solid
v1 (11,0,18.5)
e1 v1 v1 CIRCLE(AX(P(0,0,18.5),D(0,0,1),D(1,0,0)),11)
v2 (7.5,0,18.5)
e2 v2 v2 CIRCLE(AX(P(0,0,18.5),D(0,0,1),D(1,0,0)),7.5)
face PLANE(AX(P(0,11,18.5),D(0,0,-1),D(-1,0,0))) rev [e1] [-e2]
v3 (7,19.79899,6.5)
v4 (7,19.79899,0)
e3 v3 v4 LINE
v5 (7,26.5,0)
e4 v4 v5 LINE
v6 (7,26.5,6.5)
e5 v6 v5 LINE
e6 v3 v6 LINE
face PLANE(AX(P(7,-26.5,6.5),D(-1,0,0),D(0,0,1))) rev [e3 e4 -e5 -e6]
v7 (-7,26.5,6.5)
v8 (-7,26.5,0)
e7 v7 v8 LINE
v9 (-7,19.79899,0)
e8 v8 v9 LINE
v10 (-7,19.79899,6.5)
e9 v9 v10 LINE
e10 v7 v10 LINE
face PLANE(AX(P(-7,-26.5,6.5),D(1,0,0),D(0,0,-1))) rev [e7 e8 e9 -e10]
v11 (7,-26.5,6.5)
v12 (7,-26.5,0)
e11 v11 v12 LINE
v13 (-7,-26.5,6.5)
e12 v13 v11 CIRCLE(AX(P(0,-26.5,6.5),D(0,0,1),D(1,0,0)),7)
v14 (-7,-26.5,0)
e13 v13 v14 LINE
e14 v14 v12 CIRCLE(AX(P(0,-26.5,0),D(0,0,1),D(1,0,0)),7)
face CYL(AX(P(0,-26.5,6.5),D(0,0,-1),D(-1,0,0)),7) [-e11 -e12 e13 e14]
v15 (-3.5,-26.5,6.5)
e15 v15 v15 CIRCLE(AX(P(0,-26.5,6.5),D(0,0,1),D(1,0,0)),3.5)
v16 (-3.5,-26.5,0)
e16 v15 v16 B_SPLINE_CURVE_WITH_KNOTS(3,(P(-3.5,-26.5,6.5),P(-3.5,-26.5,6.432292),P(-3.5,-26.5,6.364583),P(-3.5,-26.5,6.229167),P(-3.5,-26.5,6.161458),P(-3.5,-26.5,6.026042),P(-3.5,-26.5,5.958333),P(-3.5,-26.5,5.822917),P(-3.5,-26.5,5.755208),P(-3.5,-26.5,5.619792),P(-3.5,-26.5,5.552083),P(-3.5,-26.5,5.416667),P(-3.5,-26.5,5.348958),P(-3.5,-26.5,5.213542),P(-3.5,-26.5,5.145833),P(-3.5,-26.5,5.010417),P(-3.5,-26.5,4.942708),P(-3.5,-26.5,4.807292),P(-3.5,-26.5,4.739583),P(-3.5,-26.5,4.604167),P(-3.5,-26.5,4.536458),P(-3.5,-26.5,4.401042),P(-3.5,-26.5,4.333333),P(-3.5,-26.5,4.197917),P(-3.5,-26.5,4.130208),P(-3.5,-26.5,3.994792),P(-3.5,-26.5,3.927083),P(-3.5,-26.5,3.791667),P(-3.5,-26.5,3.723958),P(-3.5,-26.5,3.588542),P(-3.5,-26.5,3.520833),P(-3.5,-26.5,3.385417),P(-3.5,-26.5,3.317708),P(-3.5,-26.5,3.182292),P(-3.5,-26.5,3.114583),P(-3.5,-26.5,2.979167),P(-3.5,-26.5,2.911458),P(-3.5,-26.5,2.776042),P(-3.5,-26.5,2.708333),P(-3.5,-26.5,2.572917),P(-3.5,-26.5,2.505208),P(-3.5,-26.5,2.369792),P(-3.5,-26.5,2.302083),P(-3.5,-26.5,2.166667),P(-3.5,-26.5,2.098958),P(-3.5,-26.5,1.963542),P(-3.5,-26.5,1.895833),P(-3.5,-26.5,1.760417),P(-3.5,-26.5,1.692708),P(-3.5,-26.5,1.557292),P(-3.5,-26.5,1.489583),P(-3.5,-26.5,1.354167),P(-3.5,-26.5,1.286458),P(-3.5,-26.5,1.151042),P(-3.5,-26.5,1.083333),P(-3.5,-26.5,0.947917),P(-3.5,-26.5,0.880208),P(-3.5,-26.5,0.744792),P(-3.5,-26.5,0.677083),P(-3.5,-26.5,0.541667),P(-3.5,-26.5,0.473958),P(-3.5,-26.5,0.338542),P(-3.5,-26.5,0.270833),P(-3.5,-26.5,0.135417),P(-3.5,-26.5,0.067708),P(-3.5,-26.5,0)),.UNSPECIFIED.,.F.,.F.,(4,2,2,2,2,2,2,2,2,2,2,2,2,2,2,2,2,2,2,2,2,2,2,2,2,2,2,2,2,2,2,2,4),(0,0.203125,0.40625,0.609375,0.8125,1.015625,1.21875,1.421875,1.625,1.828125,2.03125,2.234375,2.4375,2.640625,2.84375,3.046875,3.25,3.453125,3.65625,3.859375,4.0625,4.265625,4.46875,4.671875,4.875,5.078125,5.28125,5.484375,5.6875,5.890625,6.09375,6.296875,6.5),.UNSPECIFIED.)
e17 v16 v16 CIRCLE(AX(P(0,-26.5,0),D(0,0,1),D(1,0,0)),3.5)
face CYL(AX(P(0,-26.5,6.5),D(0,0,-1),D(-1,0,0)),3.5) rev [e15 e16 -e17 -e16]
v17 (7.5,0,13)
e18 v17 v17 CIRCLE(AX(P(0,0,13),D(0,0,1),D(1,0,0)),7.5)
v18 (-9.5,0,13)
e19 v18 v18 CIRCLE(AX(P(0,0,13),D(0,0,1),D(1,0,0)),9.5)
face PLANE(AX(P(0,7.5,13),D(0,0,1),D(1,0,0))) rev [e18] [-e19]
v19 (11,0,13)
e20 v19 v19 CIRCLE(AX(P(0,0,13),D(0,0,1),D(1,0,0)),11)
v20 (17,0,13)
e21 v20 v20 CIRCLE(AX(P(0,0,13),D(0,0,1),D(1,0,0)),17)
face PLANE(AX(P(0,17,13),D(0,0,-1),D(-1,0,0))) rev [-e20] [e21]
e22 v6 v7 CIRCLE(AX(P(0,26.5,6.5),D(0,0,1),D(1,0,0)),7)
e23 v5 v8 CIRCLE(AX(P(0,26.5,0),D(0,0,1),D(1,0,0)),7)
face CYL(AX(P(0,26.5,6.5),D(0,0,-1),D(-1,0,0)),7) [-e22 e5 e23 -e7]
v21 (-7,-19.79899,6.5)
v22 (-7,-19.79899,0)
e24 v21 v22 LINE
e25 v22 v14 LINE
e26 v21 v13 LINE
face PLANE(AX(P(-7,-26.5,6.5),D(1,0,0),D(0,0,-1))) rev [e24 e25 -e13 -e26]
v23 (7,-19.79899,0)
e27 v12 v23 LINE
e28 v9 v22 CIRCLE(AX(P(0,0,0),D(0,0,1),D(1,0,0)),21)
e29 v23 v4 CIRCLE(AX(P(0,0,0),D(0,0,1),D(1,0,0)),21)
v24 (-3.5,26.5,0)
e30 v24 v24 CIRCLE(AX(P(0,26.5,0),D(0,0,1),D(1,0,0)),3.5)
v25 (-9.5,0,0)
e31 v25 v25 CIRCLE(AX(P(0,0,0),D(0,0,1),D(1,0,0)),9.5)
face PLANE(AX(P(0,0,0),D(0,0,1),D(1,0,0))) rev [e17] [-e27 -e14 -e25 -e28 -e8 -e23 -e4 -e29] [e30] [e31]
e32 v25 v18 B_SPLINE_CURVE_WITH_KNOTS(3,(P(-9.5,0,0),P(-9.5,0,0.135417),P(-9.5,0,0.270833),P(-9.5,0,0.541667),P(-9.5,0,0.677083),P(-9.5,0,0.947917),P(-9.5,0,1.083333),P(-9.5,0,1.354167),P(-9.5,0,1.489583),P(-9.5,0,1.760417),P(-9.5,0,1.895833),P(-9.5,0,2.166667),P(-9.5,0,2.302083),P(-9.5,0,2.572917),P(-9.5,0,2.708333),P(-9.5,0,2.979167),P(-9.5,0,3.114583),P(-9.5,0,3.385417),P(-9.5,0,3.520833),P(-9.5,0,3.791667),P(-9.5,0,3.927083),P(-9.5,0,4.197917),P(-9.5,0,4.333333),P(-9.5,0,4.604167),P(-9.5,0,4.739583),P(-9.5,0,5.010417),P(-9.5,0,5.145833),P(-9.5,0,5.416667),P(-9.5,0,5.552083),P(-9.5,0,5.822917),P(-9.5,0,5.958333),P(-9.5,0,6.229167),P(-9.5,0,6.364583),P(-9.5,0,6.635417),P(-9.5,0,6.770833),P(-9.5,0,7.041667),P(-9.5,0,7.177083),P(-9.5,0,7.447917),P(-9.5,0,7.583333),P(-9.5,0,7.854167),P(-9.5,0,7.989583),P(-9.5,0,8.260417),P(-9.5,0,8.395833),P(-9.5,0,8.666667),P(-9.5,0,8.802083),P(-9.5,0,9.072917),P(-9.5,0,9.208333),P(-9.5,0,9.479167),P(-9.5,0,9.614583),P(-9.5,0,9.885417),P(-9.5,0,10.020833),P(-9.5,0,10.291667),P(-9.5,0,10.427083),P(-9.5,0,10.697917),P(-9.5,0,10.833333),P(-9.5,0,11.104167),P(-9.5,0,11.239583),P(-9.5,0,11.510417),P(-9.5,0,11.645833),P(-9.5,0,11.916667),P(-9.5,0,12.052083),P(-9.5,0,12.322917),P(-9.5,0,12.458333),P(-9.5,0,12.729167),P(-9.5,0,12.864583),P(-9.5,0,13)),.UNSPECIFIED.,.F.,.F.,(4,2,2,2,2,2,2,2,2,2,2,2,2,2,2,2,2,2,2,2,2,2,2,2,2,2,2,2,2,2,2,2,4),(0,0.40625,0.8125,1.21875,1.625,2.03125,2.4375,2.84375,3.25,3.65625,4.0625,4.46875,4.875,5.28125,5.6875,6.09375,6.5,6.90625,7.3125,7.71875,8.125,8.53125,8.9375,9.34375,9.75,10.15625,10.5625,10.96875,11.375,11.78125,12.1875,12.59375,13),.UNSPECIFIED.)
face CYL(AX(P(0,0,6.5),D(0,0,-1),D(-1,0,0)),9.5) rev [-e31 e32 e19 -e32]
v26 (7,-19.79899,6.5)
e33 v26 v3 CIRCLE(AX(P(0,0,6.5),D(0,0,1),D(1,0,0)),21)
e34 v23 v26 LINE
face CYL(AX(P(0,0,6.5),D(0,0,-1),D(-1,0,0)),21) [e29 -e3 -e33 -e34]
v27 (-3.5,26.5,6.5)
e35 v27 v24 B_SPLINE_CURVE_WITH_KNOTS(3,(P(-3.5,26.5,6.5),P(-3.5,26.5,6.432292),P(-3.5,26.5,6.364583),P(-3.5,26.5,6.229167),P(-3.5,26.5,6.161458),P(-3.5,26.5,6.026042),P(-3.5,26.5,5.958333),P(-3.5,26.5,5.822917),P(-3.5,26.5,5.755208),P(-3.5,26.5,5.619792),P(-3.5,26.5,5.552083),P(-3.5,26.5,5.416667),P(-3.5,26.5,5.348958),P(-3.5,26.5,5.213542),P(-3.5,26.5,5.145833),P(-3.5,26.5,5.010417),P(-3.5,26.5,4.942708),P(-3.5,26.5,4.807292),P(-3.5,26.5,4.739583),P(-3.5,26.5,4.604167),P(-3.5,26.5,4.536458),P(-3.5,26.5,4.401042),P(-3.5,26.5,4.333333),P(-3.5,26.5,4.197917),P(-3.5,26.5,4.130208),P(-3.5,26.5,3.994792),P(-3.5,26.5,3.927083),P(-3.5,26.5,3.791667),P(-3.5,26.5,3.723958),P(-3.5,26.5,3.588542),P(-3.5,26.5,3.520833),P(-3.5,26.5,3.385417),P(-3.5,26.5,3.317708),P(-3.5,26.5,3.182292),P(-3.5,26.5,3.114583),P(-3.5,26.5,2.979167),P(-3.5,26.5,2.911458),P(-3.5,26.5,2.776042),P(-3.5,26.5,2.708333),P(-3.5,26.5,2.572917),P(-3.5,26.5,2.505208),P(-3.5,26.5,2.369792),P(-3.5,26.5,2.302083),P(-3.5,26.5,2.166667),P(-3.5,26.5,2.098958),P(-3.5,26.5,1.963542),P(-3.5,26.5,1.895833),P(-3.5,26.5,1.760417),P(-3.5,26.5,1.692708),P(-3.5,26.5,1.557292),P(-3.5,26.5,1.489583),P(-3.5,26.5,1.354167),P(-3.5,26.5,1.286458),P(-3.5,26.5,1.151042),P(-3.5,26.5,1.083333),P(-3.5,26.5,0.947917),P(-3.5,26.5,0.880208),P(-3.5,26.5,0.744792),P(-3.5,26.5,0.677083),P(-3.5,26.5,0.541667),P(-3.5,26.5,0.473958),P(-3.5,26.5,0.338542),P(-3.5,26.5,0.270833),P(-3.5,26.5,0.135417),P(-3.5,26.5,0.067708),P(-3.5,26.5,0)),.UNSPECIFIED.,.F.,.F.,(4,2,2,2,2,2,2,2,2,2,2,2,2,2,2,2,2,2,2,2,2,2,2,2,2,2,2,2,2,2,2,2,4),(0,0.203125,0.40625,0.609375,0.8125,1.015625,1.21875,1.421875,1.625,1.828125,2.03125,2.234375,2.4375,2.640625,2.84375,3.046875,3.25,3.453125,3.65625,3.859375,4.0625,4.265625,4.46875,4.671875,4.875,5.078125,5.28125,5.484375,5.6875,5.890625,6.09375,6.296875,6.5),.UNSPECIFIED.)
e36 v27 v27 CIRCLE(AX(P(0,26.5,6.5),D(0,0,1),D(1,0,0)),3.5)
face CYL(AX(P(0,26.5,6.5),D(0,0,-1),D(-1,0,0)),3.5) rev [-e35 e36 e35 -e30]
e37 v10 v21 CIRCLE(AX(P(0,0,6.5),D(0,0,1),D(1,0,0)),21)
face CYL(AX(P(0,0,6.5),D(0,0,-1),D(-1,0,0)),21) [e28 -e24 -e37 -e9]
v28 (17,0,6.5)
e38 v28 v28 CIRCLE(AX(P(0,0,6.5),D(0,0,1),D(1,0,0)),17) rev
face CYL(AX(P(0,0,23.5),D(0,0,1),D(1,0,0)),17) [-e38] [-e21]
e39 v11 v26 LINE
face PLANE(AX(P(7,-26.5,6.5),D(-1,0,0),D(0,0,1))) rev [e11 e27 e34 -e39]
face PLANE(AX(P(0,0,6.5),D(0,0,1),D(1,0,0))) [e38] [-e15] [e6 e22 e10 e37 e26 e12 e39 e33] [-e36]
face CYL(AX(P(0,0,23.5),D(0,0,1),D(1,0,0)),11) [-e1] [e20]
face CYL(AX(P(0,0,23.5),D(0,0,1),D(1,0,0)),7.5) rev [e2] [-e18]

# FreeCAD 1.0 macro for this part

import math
import FreeCAD as App
import Part
import Sketcher

V = App.Vector


def add_polygon(sketch, points):
    """Adds a closed chain of lines whose ends are joined by coincident constraints."""
    first, n = sketch.GeometryCount, len(points)
    for a, b in zip(points, points[1:] + points[:1]):
        sketch.addGeometry(Part.LineSegment(App.Vector(*a, 0), App.Vector(*b, 0)), False)
    for i in range(n):
        sketch.addConstraint(Sketcher.Constraint("Coincident", first + i, 2, first + (i + 1) % n, 1))

doc = App.newDocument("Part")
body = doc.addObject("PartDesign::Body", "Body")

# Sketch on XY plane
sketch1 = body.newObject("Sketcher::SketchObject", "Sketch")
sketch1.AttachmentSupport = (doc.getObject("XY_Plane"), [""])
sketch1.MapMode = "FlatFace"
sketch1.addGeometry(Part.Circle(V(0, 0, 0), V(0, 0, 1), 21), False)
sketch1.addConstraint(Sketcher.Constraint("Coincident", 0, 3, -1, 1))
sketch1.addConstraint(Sketcher.Constraint("Diameter", 0, 42.0))
pad1 = body.newObject("PartDesign::Pad", "Pad")
pad1.Profile = sketch1
pad1.Length = 6.5

# Sketch on XY plane
sketch2 = body.newObject("Sketcher::SketchObject", "Sketch001")
sketch2.AttachmentSupport = (doc.getObject("XY_Plane"), [""])
sketch2.MapMode = "FlatFace"
sketch2.addGeometry(Part.LineSegment(V(-7, 26.5, 0), V(-7, -26.5, 0)), False)
sketch2.addGeometry(Part.ArcOfCircle(Part.Circle(V(0, -26.5, 0), V(0, 0, 1), 7), math.radians(180), math.radians(360)), False)
sketch2.addGeometry(Part.LineSegment(V(7, -26.5, 0), V(7, 26.5, 0)), False)
sketch2.addGeometry(Part.ArcOfCircle(Part.Circle(V(0, 26.5, 0), V(0, 0, 1), 7), math.radians(0), math.radians(180)), False)
sketch2.addConstraint(Sketcher.Constraint("Tangent", 0, 2, 1, 1))
sketch2.addConstraint(Sketcher.Constraint("Tangent", 1, 2, 2, 1))
sketch2.addConstraint(Sketcher.Constraint("Tangent", 2, 2, 3, 1))
sketch2.addConstraint(Sketcher.Constraint("Tangent", 3, 2, 0, 1))
sketch2.addConstraint(Sketcher.Constraint("Vertical", 0))
sketch2.addConstraint(Sketcher.Constraint("Vertical", 2))
sketch2.addConstraint(Sketcher.Constraint("Symmetric", 1, 3, 3, 3, -1, 1))
sketch2.addConstraint(Sketcher.Constraint("Radius", 1, 7.0))
sketch2.addConstraint(Sketcher.Constraint("DistanceY", 0, 2, 0, 1, 53.0))
pad2 = body.newObject("PartDesign::Pad", "Pad001")
pad2.Profile = sketch2
pad2.Length = 6.5

# Sketch on XY plane
sketch3 = body.newObject("Sketcher::SketchObject", "Sketch002")
sketch3.AttachmentSupport = (doc.getObject("XY_Plane"), [""])
sketch3.MapMode = "FlatFace"
sketch3.addGeometry(Part.Circle(V(0, 0, 0), V(0, 0, 1), 9.5), False)
sketch3.addGeometry(Part.Circle(V(0, -26.5, 0), V(0, 0, 1), 3.5), False)
sketch3.addGeometry(Part.Circle(V(0, 26.5, 0), V(0, 0, 1), 3.5), False)
sketch3.addConstraint(Sketcher.Constraint("Coincident", 0, 3, -1, 1))
sketch3.addConstraint(Sketcher.Constraint("Equal", 1, 2))
sketch3.addConstraint(Sketcher.Constraint("Symmetric", 1, 3, 2, 3, -1, 1))
sketch3.addConstraint(Sketcher.Constraint("PointOnObject", 1, 3, -2))
sketch3.addConstraint(Sketcher.Constraint("Diameter", 0, 19.0))
sketch3.addConstraint(Sketcher.Constraint("Diameter", 1, 7.0))
sketch3.addConstraint(Sketcher.Constraint("DistanceY", 1, 3, 2, 3, 53.0))
pocket1 = body.newObject("PartDesign::Pocket", "Pocket")
pocket1.Profile = sketch3
pocket1.Type = "ThroughAll"
pocket1.Reversed = True

# Sketch on YZ plane
sketch4 = body.newObject("Sketcher::SketchObject", "Sketch003")
sketch4.AttachmentSupport = (doc.getObject("YZ_Plane"), [""])
sketch4.MapMode = "FlatFace"
add_polygon(sketch4, [(9.5, 0), (17, 0), (17, 13), (11, 13), (11, 18.5), (7.5, 18.5), (7.5, 13), (9.5, 13)])  # lines 0-7
sketch4.addConstraint(Sketcher.Constraint("Horizontal", 0))
sketch4.addConstraint(Sketcher.Constraint("Vertical", 1))
sketch4.addConstraint(Sketcher.Constraint("Horizontal", 2))
sketch4.addConstraint(Sketcher.Constraint("Vertical", 3))
sketch4.addConstraint(Sketcher.Constraint("Horizontal", 4))
sketch4.addConstraint(Sketcher.Constraint("Vertical", 5))
sketch4.addConstraint(Sketcher.Constraint("Horizontal", 6))
sketch4.addConstraint(Sketcher.Constraint("Vertical", 7))
sketch4.addConstraint(Sketcher.Constraint("PointOnObject", 0, 2, -1))
sketch4.addConstraint(Sketcher.Constraint("Horizontal", 2, 2, 5, 2))
sketch4.addConstraint(Sketcher.Constraint("DistanceX", 2, 2, 2, 1, 6.0))
sketch4.addConstraint(Sketcher.Constraint("DistanceX", 6, 1, 6, 2, 2.0))
sketch4.addConstraint(Sketcher.Constraint("DistanceY", 1, 1, 1, 2, 13.0))
sketch4.addConstraint(Sketcher.Constraint("DistanceX", 0, 1, 0, 2, 7.5))
sketch4.addConstraint(Sketcher.Constraint("DistanceY", 3, 1, 3, 2, 5.5))
sketch4.addConstraint(Sketcher.Constraint("DistanceX", -1, 1, 0, 2, 17.0))
revolution = body.newObject("PartDesign::Revolution", "Revolution")
revolution.Profile = sketch4
revolution.ReferenceAxis = (sketch4, ["V_Axis"])
revolution.Angle = 360

doc.recompute()
